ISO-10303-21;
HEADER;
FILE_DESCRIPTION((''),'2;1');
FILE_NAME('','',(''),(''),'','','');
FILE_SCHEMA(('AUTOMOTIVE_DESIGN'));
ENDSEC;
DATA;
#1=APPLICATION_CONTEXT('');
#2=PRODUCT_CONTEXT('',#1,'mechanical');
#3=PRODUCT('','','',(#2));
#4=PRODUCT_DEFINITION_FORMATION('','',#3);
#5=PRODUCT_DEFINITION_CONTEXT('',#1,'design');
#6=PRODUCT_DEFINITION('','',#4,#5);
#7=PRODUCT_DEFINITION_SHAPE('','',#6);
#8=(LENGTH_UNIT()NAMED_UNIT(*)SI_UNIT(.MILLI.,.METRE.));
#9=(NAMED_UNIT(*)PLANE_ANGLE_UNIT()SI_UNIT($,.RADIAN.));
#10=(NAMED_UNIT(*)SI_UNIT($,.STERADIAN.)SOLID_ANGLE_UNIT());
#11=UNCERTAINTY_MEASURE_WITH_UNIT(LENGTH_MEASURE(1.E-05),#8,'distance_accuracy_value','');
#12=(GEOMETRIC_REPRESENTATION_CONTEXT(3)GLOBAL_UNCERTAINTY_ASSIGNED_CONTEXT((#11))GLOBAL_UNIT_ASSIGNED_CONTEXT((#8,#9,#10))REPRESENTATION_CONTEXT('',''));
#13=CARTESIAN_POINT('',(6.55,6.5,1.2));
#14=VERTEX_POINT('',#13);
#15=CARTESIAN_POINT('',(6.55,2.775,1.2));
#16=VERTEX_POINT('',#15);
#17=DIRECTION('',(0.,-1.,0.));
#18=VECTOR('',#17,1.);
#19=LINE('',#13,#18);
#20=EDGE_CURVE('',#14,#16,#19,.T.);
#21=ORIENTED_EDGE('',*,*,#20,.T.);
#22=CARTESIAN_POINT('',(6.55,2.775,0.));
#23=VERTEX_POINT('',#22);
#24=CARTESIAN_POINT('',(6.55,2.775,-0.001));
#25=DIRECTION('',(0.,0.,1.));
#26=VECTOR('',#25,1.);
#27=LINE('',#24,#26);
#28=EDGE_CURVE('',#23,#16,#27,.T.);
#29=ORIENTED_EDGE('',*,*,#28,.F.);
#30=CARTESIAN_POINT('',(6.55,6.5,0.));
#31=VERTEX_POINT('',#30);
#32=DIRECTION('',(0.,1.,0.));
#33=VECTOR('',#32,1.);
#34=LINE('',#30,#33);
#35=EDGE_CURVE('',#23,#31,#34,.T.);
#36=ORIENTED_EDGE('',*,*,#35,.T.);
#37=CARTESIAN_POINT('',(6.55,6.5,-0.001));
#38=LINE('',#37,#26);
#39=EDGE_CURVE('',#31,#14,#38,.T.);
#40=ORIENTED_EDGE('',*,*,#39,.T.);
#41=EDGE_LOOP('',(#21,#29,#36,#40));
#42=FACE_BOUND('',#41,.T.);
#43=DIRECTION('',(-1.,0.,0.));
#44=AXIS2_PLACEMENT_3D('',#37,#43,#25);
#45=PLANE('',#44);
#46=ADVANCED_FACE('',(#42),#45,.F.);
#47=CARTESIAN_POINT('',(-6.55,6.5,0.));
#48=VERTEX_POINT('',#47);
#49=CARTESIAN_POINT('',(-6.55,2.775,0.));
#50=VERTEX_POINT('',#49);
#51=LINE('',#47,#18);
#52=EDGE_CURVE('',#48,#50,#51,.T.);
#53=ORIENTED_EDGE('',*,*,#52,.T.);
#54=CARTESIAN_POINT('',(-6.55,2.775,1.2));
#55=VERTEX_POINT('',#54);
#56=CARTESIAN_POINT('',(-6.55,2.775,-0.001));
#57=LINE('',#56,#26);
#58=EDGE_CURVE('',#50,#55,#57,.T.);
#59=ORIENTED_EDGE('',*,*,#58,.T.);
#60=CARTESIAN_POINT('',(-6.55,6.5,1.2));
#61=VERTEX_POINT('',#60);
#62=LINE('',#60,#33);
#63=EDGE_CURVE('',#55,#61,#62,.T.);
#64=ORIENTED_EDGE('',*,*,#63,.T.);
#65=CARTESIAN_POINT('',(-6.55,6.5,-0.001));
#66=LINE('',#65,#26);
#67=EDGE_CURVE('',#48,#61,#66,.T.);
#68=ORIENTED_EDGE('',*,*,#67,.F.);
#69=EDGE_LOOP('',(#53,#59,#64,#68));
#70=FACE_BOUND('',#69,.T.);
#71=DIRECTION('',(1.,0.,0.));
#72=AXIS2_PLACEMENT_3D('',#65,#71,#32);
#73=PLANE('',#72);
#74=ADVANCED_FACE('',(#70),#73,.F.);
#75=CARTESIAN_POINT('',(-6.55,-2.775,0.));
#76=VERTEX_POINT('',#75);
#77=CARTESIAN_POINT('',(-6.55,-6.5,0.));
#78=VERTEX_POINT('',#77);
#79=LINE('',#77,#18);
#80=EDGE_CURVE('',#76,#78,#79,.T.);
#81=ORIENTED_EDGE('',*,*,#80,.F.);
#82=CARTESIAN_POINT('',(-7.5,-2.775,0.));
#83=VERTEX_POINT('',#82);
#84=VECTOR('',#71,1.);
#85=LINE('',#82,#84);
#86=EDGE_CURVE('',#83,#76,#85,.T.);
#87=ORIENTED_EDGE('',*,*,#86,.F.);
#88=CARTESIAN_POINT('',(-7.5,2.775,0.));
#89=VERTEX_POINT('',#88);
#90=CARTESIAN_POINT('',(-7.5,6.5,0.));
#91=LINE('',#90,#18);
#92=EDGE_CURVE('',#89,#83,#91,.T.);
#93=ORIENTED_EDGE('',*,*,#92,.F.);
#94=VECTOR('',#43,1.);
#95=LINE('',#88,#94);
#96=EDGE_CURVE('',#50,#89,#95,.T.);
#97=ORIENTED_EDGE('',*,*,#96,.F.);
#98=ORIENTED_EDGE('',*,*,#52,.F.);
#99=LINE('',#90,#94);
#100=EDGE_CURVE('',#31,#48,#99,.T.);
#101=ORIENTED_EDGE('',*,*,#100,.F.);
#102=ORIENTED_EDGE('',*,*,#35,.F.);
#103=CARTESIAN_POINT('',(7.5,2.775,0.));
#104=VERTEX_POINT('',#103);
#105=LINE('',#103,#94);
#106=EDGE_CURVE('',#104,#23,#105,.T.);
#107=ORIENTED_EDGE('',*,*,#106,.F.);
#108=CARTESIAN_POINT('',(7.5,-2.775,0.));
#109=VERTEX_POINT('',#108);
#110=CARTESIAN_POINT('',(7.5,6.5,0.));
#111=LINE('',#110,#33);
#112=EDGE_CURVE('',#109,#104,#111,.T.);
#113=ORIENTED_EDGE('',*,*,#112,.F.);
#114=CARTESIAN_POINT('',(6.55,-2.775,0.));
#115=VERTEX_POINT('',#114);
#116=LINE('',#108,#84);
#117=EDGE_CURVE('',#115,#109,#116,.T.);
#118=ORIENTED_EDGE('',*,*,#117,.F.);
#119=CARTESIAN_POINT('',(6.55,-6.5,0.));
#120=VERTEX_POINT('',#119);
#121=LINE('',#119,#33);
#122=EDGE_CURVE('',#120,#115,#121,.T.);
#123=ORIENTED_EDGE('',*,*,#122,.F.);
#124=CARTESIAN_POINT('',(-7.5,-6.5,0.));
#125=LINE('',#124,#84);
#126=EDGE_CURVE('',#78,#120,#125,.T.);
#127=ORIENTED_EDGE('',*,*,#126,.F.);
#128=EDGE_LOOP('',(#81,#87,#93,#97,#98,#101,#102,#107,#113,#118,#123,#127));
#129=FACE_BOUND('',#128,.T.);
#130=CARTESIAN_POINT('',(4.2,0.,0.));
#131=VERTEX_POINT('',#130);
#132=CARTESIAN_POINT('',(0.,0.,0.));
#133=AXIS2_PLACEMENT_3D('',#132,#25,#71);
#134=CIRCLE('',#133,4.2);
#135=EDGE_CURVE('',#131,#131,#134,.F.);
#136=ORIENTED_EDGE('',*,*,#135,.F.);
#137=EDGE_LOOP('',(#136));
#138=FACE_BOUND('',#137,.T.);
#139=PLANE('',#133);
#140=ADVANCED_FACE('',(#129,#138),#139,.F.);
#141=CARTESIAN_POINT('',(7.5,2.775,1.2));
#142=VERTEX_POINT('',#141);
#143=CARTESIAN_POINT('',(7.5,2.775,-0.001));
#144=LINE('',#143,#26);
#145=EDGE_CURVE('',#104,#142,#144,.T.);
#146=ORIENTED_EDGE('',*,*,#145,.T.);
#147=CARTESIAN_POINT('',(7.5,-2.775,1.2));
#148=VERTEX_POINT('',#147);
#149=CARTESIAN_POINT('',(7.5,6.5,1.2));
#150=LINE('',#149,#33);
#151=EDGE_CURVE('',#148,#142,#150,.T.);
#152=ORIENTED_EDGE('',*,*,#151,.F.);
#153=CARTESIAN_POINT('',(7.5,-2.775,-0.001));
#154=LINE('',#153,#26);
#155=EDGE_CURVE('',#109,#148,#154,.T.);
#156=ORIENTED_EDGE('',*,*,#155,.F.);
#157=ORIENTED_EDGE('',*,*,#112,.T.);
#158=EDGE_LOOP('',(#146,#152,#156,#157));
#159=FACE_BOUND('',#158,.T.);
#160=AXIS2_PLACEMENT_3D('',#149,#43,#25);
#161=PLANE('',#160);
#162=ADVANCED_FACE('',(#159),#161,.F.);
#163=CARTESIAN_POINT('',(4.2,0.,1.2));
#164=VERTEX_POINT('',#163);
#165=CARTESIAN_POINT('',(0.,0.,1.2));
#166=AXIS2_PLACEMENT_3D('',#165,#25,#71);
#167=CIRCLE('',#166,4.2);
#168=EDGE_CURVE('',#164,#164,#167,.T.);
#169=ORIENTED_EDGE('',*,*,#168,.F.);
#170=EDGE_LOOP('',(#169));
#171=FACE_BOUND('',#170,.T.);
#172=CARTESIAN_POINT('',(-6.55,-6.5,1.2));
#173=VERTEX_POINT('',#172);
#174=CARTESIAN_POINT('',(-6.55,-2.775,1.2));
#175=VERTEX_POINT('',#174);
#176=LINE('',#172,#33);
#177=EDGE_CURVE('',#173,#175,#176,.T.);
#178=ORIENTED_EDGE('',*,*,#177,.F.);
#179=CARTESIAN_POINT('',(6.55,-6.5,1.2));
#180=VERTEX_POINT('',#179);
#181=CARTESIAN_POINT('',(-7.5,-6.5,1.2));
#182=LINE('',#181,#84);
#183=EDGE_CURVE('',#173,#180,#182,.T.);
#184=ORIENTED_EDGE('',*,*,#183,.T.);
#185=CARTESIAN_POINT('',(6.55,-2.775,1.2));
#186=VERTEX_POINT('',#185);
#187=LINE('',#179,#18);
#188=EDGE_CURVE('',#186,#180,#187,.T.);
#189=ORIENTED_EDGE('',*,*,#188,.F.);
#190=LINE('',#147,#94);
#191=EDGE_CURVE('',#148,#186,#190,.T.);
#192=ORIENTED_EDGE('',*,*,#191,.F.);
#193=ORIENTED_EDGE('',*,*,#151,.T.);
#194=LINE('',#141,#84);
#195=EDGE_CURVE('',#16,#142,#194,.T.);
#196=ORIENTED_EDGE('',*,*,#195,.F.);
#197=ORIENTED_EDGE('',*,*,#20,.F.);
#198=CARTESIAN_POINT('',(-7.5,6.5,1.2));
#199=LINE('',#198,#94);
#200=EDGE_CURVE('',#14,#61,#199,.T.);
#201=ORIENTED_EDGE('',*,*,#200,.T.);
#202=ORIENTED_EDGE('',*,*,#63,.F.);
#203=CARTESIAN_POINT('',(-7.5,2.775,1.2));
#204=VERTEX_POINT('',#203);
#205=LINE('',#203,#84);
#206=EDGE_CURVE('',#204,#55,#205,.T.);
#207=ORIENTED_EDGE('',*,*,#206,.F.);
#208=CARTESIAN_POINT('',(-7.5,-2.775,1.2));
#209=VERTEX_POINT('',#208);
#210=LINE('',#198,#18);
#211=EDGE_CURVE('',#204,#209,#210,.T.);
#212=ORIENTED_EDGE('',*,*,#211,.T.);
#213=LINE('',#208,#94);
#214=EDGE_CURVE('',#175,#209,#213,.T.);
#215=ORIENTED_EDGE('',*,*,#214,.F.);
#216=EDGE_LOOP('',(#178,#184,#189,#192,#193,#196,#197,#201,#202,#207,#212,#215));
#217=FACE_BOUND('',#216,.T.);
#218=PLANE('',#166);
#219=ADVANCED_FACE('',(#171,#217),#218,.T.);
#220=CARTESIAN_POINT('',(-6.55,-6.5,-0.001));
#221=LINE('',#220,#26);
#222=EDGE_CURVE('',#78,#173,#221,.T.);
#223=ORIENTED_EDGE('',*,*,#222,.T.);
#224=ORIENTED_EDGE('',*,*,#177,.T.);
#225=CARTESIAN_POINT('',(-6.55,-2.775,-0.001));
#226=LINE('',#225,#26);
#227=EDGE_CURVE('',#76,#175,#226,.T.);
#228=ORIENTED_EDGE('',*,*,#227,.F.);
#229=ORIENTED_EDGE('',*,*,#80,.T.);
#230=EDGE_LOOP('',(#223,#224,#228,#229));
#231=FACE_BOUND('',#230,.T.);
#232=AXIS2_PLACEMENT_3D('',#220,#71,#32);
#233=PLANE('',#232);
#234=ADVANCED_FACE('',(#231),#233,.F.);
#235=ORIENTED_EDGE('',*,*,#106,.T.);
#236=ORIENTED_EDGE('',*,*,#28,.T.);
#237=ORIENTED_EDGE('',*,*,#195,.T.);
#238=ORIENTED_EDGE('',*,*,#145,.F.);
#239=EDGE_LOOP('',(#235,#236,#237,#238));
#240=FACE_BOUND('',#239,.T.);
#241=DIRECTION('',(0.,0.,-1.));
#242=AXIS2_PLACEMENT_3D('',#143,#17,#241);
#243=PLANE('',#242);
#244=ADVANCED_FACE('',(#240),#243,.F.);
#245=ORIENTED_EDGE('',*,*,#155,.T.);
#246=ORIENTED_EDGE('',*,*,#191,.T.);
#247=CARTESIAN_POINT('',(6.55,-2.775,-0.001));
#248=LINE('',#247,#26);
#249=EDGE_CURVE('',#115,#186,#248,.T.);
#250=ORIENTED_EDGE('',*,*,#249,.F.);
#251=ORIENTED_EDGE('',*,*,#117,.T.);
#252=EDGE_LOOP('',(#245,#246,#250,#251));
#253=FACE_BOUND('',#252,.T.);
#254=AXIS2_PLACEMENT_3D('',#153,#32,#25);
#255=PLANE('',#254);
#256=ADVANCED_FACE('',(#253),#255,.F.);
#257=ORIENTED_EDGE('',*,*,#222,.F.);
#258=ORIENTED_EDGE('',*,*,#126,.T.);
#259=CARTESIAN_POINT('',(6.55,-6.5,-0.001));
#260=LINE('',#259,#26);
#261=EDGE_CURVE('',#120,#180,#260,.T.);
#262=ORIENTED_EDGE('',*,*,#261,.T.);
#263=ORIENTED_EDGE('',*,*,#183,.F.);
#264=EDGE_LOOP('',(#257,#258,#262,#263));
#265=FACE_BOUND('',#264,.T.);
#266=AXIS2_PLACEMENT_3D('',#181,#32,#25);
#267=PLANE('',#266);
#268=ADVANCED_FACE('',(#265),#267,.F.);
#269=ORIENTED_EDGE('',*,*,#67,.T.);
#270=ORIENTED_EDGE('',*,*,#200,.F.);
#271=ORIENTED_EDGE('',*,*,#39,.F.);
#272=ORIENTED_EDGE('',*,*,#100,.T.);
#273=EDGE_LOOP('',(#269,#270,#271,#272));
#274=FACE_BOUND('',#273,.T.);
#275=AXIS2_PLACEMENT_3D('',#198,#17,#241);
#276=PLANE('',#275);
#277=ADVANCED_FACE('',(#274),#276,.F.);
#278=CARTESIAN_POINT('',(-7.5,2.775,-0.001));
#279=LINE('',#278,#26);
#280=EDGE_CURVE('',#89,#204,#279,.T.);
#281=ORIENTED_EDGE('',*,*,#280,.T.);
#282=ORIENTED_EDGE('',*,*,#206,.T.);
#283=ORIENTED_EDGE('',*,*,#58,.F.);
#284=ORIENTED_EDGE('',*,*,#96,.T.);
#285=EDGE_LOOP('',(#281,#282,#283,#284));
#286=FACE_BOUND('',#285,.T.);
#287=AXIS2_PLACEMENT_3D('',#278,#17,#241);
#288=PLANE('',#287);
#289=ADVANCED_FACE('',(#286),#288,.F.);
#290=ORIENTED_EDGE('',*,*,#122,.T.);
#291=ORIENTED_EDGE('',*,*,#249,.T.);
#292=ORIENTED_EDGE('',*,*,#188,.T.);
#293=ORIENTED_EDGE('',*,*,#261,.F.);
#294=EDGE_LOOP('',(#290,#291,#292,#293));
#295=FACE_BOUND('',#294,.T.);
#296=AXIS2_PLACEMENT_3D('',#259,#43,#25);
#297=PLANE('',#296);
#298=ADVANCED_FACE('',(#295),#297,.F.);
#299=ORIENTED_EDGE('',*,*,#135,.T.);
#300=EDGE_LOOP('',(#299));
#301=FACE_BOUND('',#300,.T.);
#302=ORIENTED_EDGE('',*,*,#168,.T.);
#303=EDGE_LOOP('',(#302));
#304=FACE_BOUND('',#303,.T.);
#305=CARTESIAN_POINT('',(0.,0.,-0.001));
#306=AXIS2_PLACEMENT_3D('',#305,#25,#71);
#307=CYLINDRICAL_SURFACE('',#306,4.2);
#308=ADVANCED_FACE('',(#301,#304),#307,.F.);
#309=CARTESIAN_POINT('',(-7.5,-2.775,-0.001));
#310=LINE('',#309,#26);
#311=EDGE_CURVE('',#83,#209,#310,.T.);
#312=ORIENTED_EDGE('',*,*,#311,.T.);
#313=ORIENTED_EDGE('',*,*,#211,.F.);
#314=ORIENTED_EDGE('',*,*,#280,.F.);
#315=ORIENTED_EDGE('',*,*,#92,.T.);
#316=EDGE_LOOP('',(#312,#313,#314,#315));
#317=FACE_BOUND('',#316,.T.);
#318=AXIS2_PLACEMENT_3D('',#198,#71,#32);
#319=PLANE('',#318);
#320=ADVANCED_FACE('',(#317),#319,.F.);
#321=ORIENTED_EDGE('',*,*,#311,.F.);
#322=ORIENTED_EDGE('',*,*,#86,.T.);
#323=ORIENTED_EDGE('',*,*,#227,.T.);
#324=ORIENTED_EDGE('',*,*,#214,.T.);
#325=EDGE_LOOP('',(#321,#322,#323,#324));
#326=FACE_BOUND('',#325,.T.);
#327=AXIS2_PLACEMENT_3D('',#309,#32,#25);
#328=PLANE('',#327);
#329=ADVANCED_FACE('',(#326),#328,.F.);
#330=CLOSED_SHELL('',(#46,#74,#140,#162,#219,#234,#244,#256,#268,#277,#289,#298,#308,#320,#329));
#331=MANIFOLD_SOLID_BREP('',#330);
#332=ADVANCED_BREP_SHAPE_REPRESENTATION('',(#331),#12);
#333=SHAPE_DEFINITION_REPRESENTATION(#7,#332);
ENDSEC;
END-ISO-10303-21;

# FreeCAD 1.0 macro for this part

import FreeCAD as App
import Part
import Sketcher

V = App.Vector


def add_polygon(sketch, points):
    """Adds a closed chain of lines whose ends are joined by coincident constraints."""
    first, n = sketch.GeometryCount, len(points)
    for a, b in zip(points, points[1:] + points[:1]):
        sketch.addGeometry(Part.LineSegment(App.Vector(*a, 0), App.Vector(*b, 0)), False)
    for i in range(n):
        sketch.addConstraint(Sketcher.Constraint("Coincident", first + i, 2, first + (i + 1) % n, 1))

doc = App.newDocument("Part")
params = doc.addObject("Spreadsheet::Sheet", "Params")
for row, (alias, value) in enumerate([
    ("sketch1_width", "15 mm"),
    ("sketch1_height", "13 mm"),
    ("pad1_length", "1.2 mm"),
    ("sketch2_width", "0.95 mm"),
    ("sketch3_width", "0.95 mm"),
    ("sketch4_width", "0.95 mm"),
    ("sketch5_width", "0.95 mm"),
    ("sketch6_diameter", "8.4 mm"),
], start=1):
    params.set(f"A{row}", alias)
    params.set(f"B{row}", "=" + value)
    params.setAlias(f"B{row}", alias)

body = doc.addObject("PartDesign::Body", "Body")

sketch1 = doc.addObject("Sketcher::SketchObject", "Sketch")
body.addObject(sketch1)
sketch1.AttachmentSupport = (doc.XY_Plane, [""])
sketch1.MapMode = "FlatFace"
add_polygon(sketch1, [(-7.5, 6.5), (-7.5, -6.5), (7.5, -6.5), (7.5, 6.5)])
sketch1.addConstraint([
    Sketcher.Constraint("Vertical", 0),
    Sketcher.Constraint("Horizontal", 1),
    Sketcher.Constraint("Vertical", 2),
    Sketcher.Constraint("Horizontal", 3),
    Sketcher.Constraint("Symmetric", 0, 2, 2, 2, -1, 1),
    Sketcher.Constraint("DistanceX", 1, 1, 1, 2, 15.0),
    Sketcher.Constraint("DistanceY", 0, 2, 0, 1, 13.0),
])
sketch1.setExpression("Constraints[9]", "Params.sketch1_width")
sketch1.setExpression("Constraints[10]", "Params.sketch1_height")
pad1 = doc.addObject("PartDesign::Pad", "Pad")
body.addObject(pad1)
pad1.Profile = sketch1
pad1.setExpression("Length", "Params.pad1_length")

sketch2 = doc.addObject("Sketcher::SketchObject", "Sketch001")
body.addObject(sketch2)
sketch2.AttachmentSupport = (doc.XY_Plane, [""])
sketch2.MapMode = "FlatFace"
sketch2.AttachmentOffset = App.Placement(V(0, 0, 1.2), App.Rotation())
add_polygon(sketch2, [(6.55, 6.5), (6.55, 2.775), (7.5, 2.775), (7.5, 6.5)])
sketch2.addConstraint([
    Sketcher.Constraint("Vertical", 0),
    Sketcher.Constraint("Horizontal", 1),
    Sketcher.Constraint("Vertical", 2),
    Sketcher.Constraint("Horizontal", 3),
    Sketcher.Constraint("DistanceX", 1, 1, 1, 2, 0.95),
    Sketcher.Constraint("DistanceX", -1, 1, 1, 2, 7.5),
    Sketcher.Constraint("DistanceY", -1, 1, 2, 2, 6.5),
    Sketcher.Constraint("DistanceY", 0, 2, 0, 1, 3.725),
])
sketch2.setExpression("Constraints[8]", "Params.sketch2_width")
pocket1 = doc.addObject("PartDesign::Pocket", "Pocket")
body.addObject(pocket1)
pocket1.Profile = sketch2
pocket1.Type = "UpToFirst"

sketch3 = doc.addObject("Sketcher::SketchObject", "Sketch002")
body.addObject(sketch3)
sketch3.AttachmentSupport = (doc.XY_Plane, [""])
sketch3.MapMode = "FlatFace"
sketch3.AttachmentOffset = App.Placement(V(0, 0, 1.2), App.Rotation())
add_polygon(sketch3, [(6.55, -2.775), (6.55, -6.5), (7.5, -6.5), (7.5, -2.775)])
sketch3.addConstraint([
    Sketcher.Constraint("Vertical", 0),
    Sketcher.Constraint("Horizontal", 1),
    Sketcher.Constraint("Vertical", 2),
    Sketcher.Constraint("Horizontal", 3),
    Sketcher.Constraint("DistanceX", 1, 1, 1, 2, 0.95),
    Sketcher.Constraint("DistanceY", 0, 2, -1, 1, 6.5),
    Sketcher.Constraint("DistanceX", -1, 1, 1, 2, 7.5),
    Sketcher.Constraint("DistanceY", 0, 2, 0, 1, 3.725),
])
sketch3.setExpression("Constraints[8]", "Params.sketch3_width")
pocket2 = doc.addObject("PartDesign::Pocket", "Pocket001")
body.addObject(pocket2)
pocket2.Profile = sketch3
pocket2.Type = "UpToFirst"

sketch4 = doc.addObject("Sketcher::SketchObject", "Sketch003")
body.addObject(sketch4)
sketch4.AttachmentSupport = (doc.XY_Plane, [""])
sketch4.MapMode = "FlatFace"
sketch4.AttachmentOffset = App.Placement(V(0, 0, 1.2), App.Rotation())
add_polygon(sketch4, [(-7.5, -2.775), (-7.5, -6.5), (-6.55, -6.5), (-6.55, -2.775)])
sketch4.addConstraint([
    Sketcher.Constraint("Vertical", 0),
    Sketcher.Constraint("Horizontal", 1),
    Sketcher.Constraint("Vertical", 2),
    Sketcher.Constraint("Horizontal", 3),
    Sketcher.Constraint("DistanceX", 1, 1, 1, 2, 0.95),
    Sketcher.Constraint("DistanceX", 0, 2, -1, 1, 7.5),
    Sketcher.Constraint("DistanceY", 0, 2, -1, 1, 6.5),
    Sketcher.Constraint("DistanceY", 0, 2, 0, 1, 3.725),
])
sketch4.setExpression("Constraints[8]", "Params.sketch4_width")
pocket3 = doc.addObject("PartDesign::Pocket", "Pocket002")
body.addObject(pocket3)
pocket3.Profile = sketch4
pocket3.Type = "UpToFirst"

sketch5 = doc.addObject("Sketcher::SketchObject", "Sketch004")
body.addObject(sketch5)
sketch5.AttachmentSupport = (doc.XY_Plane, [""])
sketch5.MapMode = "FlatFace"
sketch5.AttachmentOffset = App.Placement(V(0, 0, 1.2), App.Rotation())
add_polygon(sketch5, [(-7.5, 6.5), (-7.5, 2.775), (-6.55, 2.775), (-6.55, 6.5)])
sketch5.addConstraint([
    Sketcher.Constraint("Vertical", 0),
    Sketcher.Constraint("Horizontal", 1),
    Sketcher.Constraint("Vertical", 2),
    Sketcher.Constraint("Horizontal", 3),
    Sketcher.Constraint("DistanceX", 1, 1, 1, 2, 0.95),
    Sketcher.Constraint("DistanceX", 0, 2, -1, 1, 7.5),
    Sketcher.Constraint("DistanceY", -1, 1, 2, 2, 6.5),
    Sketcher.Constraint("DistanceY", 0, 2, 0, 1, 3.725),
])
sketch5.setExpression("Constraints[8]", "Params.sketch5_width")
pocket4 = doc.addObject("PartDesign::Pocket", "Pocket003")
body.addObject(pocket4)
pocket4.Profile = sketch5
pocket4.Type = "UpToFirst"

sketch6 = doc.addObject("Sketcher::SketchObject", "Sketch005")
body.addObject(sketch6)
sketch6.AttachmentSupport = (doc.XY_Plane, [""])
sketch6.MapMode = "FlatFace"
sketch6.AttachmentOffset = App.Placement(V(0, 0, 1.2), App.Rotation())
sketch6.addGeometry(Part.Circle(V(0, 0, 0), V(0, 0, 1), 4.2), False)
sketch6.addConstraint([
    Sketcher.Constraint("Coincident", 0, 3, -1, 1),
    Sketcher.Constraint("Diameter", 0, 8.4),
])
sketch6.setExpression("Constraints[1]", "Params.sketch6_diameter")
pocket5 = doc.addObject("PartDesign::Pocket", "Pocket004")
body.addObject(pocket5)
pocket5.Profile = sketch6
pocket5.Type = "UpToFirst"

doc.recompute()
